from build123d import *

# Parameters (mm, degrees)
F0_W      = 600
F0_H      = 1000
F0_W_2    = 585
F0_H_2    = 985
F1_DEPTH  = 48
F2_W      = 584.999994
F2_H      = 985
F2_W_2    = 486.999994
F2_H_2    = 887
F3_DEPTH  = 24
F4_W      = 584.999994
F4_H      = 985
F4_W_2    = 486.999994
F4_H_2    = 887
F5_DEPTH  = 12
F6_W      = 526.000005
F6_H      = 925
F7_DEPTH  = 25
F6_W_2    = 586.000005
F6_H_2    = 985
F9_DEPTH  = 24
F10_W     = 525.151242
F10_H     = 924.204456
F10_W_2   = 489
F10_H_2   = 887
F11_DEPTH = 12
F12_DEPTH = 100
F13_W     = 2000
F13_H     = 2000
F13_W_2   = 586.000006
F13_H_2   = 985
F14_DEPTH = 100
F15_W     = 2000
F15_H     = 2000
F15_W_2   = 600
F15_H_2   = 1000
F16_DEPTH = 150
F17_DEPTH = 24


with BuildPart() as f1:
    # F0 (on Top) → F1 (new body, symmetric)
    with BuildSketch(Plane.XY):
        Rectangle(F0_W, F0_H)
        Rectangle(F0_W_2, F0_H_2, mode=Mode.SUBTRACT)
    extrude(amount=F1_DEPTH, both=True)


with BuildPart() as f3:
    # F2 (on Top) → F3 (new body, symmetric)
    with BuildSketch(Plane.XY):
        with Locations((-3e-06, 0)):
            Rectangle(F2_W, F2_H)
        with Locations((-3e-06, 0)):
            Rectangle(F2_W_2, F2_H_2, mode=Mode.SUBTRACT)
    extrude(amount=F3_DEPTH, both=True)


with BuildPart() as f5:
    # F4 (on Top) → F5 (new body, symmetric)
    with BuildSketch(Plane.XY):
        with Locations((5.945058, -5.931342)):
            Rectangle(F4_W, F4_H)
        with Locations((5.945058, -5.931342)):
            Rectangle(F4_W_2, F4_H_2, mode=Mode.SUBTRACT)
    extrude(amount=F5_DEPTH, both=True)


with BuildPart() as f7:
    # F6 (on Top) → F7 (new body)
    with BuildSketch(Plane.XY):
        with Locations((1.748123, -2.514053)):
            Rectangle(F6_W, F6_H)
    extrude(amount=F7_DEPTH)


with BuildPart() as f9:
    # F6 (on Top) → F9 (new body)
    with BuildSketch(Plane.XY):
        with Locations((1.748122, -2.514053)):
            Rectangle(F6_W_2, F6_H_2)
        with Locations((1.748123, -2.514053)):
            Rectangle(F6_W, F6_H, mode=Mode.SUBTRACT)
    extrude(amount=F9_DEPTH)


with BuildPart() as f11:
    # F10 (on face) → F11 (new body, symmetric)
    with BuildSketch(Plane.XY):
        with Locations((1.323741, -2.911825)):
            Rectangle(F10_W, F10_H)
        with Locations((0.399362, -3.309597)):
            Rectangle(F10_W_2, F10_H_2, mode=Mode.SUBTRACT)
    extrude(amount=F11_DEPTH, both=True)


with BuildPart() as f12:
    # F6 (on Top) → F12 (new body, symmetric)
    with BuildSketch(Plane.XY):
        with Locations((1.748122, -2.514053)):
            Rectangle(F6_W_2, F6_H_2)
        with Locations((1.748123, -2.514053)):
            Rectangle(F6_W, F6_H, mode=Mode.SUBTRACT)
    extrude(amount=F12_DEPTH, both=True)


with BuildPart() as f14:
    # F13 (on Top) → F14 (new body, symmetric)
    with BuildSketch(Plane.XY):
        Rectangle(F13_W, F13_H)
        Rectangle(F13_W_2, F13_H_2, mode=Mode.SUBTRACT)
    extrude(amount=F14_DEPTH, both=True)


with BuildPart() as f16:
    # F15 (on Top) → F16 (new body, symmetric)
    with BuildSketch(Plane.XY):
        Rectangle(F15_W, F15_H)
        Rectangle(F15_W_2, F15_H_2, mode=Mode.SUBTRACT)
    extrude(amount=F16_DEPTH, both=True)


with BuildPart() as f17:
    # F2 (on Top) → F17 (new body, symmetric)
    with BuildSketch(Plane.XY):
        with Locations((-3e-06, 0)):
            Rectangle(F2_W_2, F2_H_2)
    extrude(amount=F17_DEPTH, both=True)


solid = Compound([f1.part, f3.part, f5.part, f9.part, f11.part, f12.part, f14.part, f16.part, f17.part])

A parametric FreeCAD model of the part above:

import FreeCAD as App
import Part
import Sketcher

V = App.Vector
Q = App.Units.Quantity

doc = App.newDocument("Part")
body = doc.addObject("PartDesign::Body", "Body")

# Sketch on XY plane
sketch1 = body.newObject("Sketcher::SketchObject", "Sketch")
sketch1.AttachmentSupport = (doc.getObject("XY_Plane"), [""])
sketch1.MapMode = "FlatFace"
sketch1.addGeometry([
    Part.LineSegment(V(-300, 500, 0), V(-300, -500, 0)),  # 0
    Part.LineSegment(V(-300, -500, 0), V(300, -500, 0)),  # 1
    Part.LineSegment(V(300, -500, 0), V(300, 500, 0)),  # 2
    Part.LineSegment(V(300, 500, 0), V(-300, 500, 0)),  # 3
    Part.LineSegment(V(292, -492, 0), V(-292, -492, 0)),  # 4
    Part.LineSegment(V(-292, -492, 0), V(-292, 492, 0)),  # 5
    Part.LineSegment(V(-292, 492, 0), V(292, 492, 0)),  # 6
    Part.LineSegment(V(292, 492, 0), V(292, -492, 0)),  # 7
], False)
sketch1.addConstraint([
    Sketcher.Constraint("Coincident", 0, 2, 1, 1),
    Sketcher.Constraint("Coincident", 1, 2, 2, 1),
    Sketcher.Constraint("Coincident", 2, 2, 3, 1),
    Sketcher.Constraint("Coincident", 3, 2, 0, 1),
    Sketcher.Constraint("Coincident", 4, 2, 5, 1),
    Sketcher.Constraint("Coincident", 5, 2, 6, 1),
    Sketcher.Constraint("Coincident", 6, 2, 7, 1),
    Sketcher.Constraint("Coincident", 7, 2, 4, 1),
    Sketcher.Constraint("Vertical", 0),
    Sketcher.Constraint("Horizontal", 1),
    Sketcher.Constraint("Vertical", 2),
    Sketcher.Constraint("Horizontal", 3),
    Sketcher.Constraint("Horizontal", 4),
    Sketcher.Constraint("Vertical", 5),
    Sketcher.Constraint("Horizontal", 6),
    Sketcher.Constraint("Vertical", 7),
    Sketcher.Constraint("Symmetric", 0, 2, 2, 2, -1, 1),
    Sketcher.Constraint("Symmetric", 4, 2, 6, 2, -1, 1),
    Sketcher.Constraint("DistanceX", 1, 1, 1, 2, Q("600 mm")),
    Sketcher.Constraint("DistanceX", 4, 2, 4, 1, Q("585 mm")),
    Sketcher.Constraint("DistanceY", 0, 2, 0, 1, Q("1000 mm")),
    Sketcher.Constraint("DistanceY", 5, 1, 5, 2, Q("985 mm")),
])
pad1 = body.newObject("PartDesign::Pad", "Pad")
pad1.Profile = sketch1
pad1.Length = 96
pad1.Midplane = True
body2 = doc.addObject("PartDesign::Body", "Body001")

# Sketch on XY plane
sketch2 = body2.newObject("Sketcher::SketchObject", "Sketch001")
sketch2.AttachmentSupport = (doc.getObject("XY_Plane001"), [""])
sketch2.MapMode = "FlatFace"
sketch2.addGeometry([
    Part.LineSegment(V(-292, 492, 0), V(-292, -492, 0)),  # 0
    Part.LineSegment(V(-292, -492, 0), V(292, -492, 0)),  # 1
    Part.LineSegment(V(292, -492, 0), V(292, 492, 0)),  # 2
    Part.LineSegment(V(292, 492, 0), V(-292, 492, 0)),  # 3
    Part.LineSegment(V(243, -444, 0), V(-243, -444, 0)),  # 4
    Part.LineSegment(V(-243, -444, 0), V(-243, 444, 0)),  # 5
    Part.LineSegment(V(-243, 444, 0), V(243, 444, 0)),  # 6
    Part.LineSegment(V(243, 444, 0), V(243, -444, 0)),  # 7
], False)
sketch2.addConstraint([
    Sketcher.Constraint("Coincident", 0, 2, 1, 1),
    Sketcher.Constraint("Coincident", 1, 2, 2, 1),
    Sketcher.Constraint("Coincident", 2, 2, 3, 1),
    Sketcher.Constraint("Coincident", 3, 2, 0, 1),
    Sketcher.Constraint("Coincident", 4, 2, 5, 1),
    Sketcher.Constraint("Coincident", 5, 2, 6, 1),
    Sketcher.Constraint("Coincident", 6, 2, 7, 1),
    Sketcher.Constraint("Coincident", 7, 2, 4, 1),
    Sketcher.Constraint("Vertical", 0),
    Sketcher.Constraint("Horizontal", 1),
    Sketcher.Constraint("Vertical", 2),
    Sketcher.Constraint("Horizontal", 3),
    Sketcher.Constraint("Horizontal", 4),
    Sketcher.Constraint("Vertical", 5),
    Sketcher.Constraint("Horizontal", 6),
    Sketcher.Constraint("Vertical", 7),
    Sketcher.Constraint("Symmetric", 0, 2, 2, 2, -1, 1),
    Sketcher.Constraint("Symmetric", 4, 2, 6, 2, -1, 1),
    Sketcher.Constraint("DistanceY", 0, 2, 0, 1, Q("985 mm")),
    Sketcher.Constraint("DistanceY", 5, 1, 5, 2, Q("887 mm")),
    Sketcher.Constraint("DistanceX", 0, 2, 4, 2, Q("49 mm")),
    Sketcher.Constraint("DistanceX", 1, 1, 1, 2, Q("584.999994 mm")),
])
pad2 = body2.newObject("PartDesign::Pad", "Pad001")
pad2.Profile = sketch2
pad2.Length = 48
pad2.Midplane = True
body3 = doc.addObject("PartDesign::Body", "Body002")

# Sketch on XY plane
sketch3 = body3.newObject("Sketcher::SketchObject", "Sketch002")
sketch3.AttachmentSupport = (doc.getObject("XY_Plane002"), [""])
sketch3.MapMode = "FlatFace"
sketch3.addGeometry([
    Part.LineSegment(V(-287, 487, 0), V(-287, -498, 0)),  # 0
    Part.LineSegment(V(-287, -498, 0), V(298, -498, 0)),  # 1
    Part.LineSegment(V(298, -498, 0), V(298, 487, 0)),  # 2
    Part.LineSegment(V(298, 487, 0), V(-287, 487, 0)),  # 3
    Part.LineSegment(V(249, -449, 0), V(-238, -449, 0)),  # 4
    Part.LineSegment(V(-238, -449, 0), V(-238, 438, 0)),  # 5
    Part.LineSegment(V(-238, 438, 0), V(249, 438, 0)),  # 6
    Part.LineSegment(V(249, 438, 0), V(249, -449, 0)),  # 7
], False)
sketch3.addConstraint([
    Sketcher.Constraint("Coincident", 0, 2, 1, 1),
    Sketcher.Constraint("Coincident", 1, 2, 2, 1),
    Sketcher.Constraint("Coincident", 2, 2, 3, 1),
    Sketcher.Constraint("Coincident", 3, 2, 0, 1),
    Sketcher.Constraint("Coincident", 4, 2, 5, 1),
    Sketcher.Constraint("Coincident", 5, 2, 6, 1),
    Sketcher.Constraint("Coincident", 6, 2, 7, 1),
    Sketcher.Constraint("Coincident", 7, 2, 4, 1),
    Sketcher.Constraint("Vertical", 0),
    Sketcher.Constraint("Horizontal", 1),
    Sketcher.Constraint("Vertical", 2),
    Sketcher.Constraint("Horizontal", 3),
    Sketcher.Constraint("Horizontal", 4),
    Sketcher.Constraint("Vertical", 5),
    Sketcher.Constraint("Horizontal", 6),
    Sketcher.Constraint("Vertical", 7),
    Sketcher.Constraint("DistanceY", 0, 2, 0, 1, Q("985 mm")),
    Sketcher.Constraint("DistanceY", 5, 1, 5, 2, Q("887 mm")),
    Sketcher.Constraint("DistanceX", 0, 2, 4, 2, Q("49 mm")),
    Sketcher.Constraint("DistanceY", 0, 2, 4, 2, Q("49 mm")),
    Sketcher.Constraint("DistanceX", 6, 2, 2, 2, Q("49 mm")),
    Sketcher.Constraint("DistanceX", 1, 1, 1, 2, Q("584.999994 mm")),
    Sketcher.Constraint("DistanceX", 0, 2, -1, 1, Q("286.554939 mm")),
    Sketcher.Constraint("DistanceY", 0, 2, -1, 1, Q("498.431342 mm")),
])
pad3 = body3.newObject("PartDesign::Pad", "Pad002")
pad3.Profile = sketch3
pad3.Length = 24
pad3.Midplane = True
body4 = doc.addObject("PartDesign::Body", "Body003")

# Sketch on XY plane
sketch4 = body4.newObject("Sketcher::SketchObject", "Sketch003")
sketch4.AttachmentSupport = (doc.getObject("XY_Plane003"), [""])
sketch4.MapMode = "FlatFace"
sketch4.addGeometry([
    Part.LineSegment(V(-261, 460, 0), V(-261, -465, 0)),
    Part.LineSegment(V(-261, -465, 0), V(265, -465, 0)),
    Part.LineSegment(V(265, -465, 0), V(265, 460, 0)),
    Part.LineSegment(V(265, 460, 0), V(-261, 460, 0)),
], False)
sketch4.addConstraint([
    Sketcher.Constraint("Coincident", 0, 2, 1, 1),
    Sketcher.Constraint("Coincident", 1, 2, 2, 1),
    Sketcher.Constraint("Coincident", 2, 2, 3, 1),
    Sketcher.Constraint("Coincident", 3, 2, 0, 1),
    Sketcher.Constraint("Vertical", 0),
    Sketcher.Constraint("Horizontal", 1),
    Sketcher.Constraint("Vertical", 2),
    Sketcher.Constraint("Horizontal", 3),
    Sketcher.Constraint("DistanceY", 0, 2, 0, 1, Q("925 mm")),
    Sketcher.Constraint("DistanceX", 1, 1, 1, 2, Q("526.000005 mm")),
    Sketcher.Constraint("DistanceX", 0, 2, -1, 1, Q("261.251879 mm")),
    Sketcher.Constraint("DistanceY", 0, 2, -1, 1, Q("465.014053 mm")),
])
pad4 = body4.newObject("PartDesign::Pad", "Pad003")
pad4.Profile = sketch4
pad4.Length = 25
body5 = doc.addObject("PartDesign::Body", "Body004")

# Sketch on XY plane
sketch5 = body5.newObject("Sketcher::SketchObject", "Sketch004")
sketch5.AttachmentSupport = (doc.getObject("XY_Plane004"), [""])
sketch5.MapMode = "FlatFace"
sketch5.addGeometry([
    Part.LineSegment(V(-291, 490, 0), V(-291, -495, 0)),  # 0
    Part.LineSegment(V(-291, -495, 0), V(295, -495, 0)),  # 1
    Part.LineSegment(V(295, -495, 0), V(295, 490, 0)),  # 2
    Part.LineSegment(V(295, 490, 0), V(-291, 490, 0)),  # 3
    Part.LineSegment(V(265, -465, 0), V(-261, -465, 0)),  # 4
    Part.LineSegment(V(-261, -465, 0), V(-261, 460, 0)),  # 5
    Part.LineSegment(V(-261, 460, 0), V(265, 460, 0)),  # 6
    Part.LineSegment(V(265, 460, 0), V(265, -465, 0)),  # 7
], False)
sketch5.addConstraint([
    Sketcher.Constraint("Coincident", 0, 2, 1, 1),
    Sketcher.Constraint("Coincident", 1, 2, 2, 1),
    Sketcher.Constraint("Coincident", 2, 2, 3, 1),
    Sketcher.Constraint("Coincident", 3, 2, 0, 1),
    Sketcher.Constraint("Coincident", 4, 2, 5, 1),
    Sketcher.Constraint("Coincident", 5, 2, 6, 1),
    Sketcher.Constraint("Coincident", 6, 2, 7, 1),
    Sketcher.Constraint("Coincident", 7, 2, 4, 1),
    Sketcher.Constraint("Vertical", 0),
    Sketcher.Constraint("Horizontal", 1),
    Sketcher.Constraint("Vertical", 2),
    Sketcher.Constraint("Horizontal", 3),
    Sketcher.Constraint("Horizontal", 4),
    Sketcher.Constraint("Vertical", 5),
    Sketcher.Constraint("Horizontal", 6),
    Sketcher.Constraint("Vertical", 7),
    Sketcher.Constraint("DistanceY", 0, 2, 0, 1, Q("985 mm")),
    Sketcher.Constraint("DistanceY", 5, 1, 5, 2, Q("925 mm")),
    Sketcher.Constraint("DistanceX", 0, 2, 4, 2, Q("30.000001 mm")),
    Sketcher.Constraint("DistanceY", 0, 2, 4, 2, Q("30 mm")),
    Sketcher.Constraint("DistanceX", 6, 2, 2, 2, Q("29.999999 mm")),
    Sketcher.Constraint("DistanceX", 1, 1, 1, 2, Q("586.000005 mm")),
    Sketcher.Constraint("DistanceX", 0, 2, -1, 1, Q("291.251881 mm")),
    Sketcher.Constraint("DistanceY", 0, 2, -1, 1, Q("495.014053 mm")),
])
pad5 = body5.newObject("PartDesign::Pad", "Pad004")
pad5.Profile = sketch5
pad5.Length = 24
body6 = doc.addObject("PartDesign::Body", "Body005")

# Sketch on XY plane
sketch6 = body6.newObject("Sketcher::SketchObject", "Sketch005")
sketch6.AttachmentSupport = (doc.getObject("XY_Plane005"), [""])
sketch6.MapMode = "FlatFace"
sketch6.addGeometry([
    Part.LineSegment(V(-261, 459, 0), V(-261, -465, 0)),  # 0
    Part.LineSegment(V(-261, -465, 0), V(264, -465, 0)),  # 1
    Part.LineSegment(V(264, -465, 0), V(264, 459, 0)),  # 2
    Part.LineSegment(V(264, 459, 0), V(-261, 459, 0)),  # 3
    Part.LineSegment(V(245, -447, 0), V(-244, -447, 0)),  # 4
    Part.LineSegment(V(-244, -447, 0), V(-244, 440, 0)),  # 5
    Part.LineSegment(V(-244, 440, 0), V(245, 440, 0)),  # 6
    Part.LineSegment(V(245, 440, 0), V(245, -447, 0)),  # 7
], False)
sketch6.addConstraint([
    Sketcher.Constraint("Coincident", 0, 2, 1, 1),
    Sketcher.Constraint("Coincident", 1, 2, 2, 1),
    Sketcher.Constraint("Coincident", 2, 2, 3, 1),
    Sketcher.Constraint("Coincident", 3, 2, 0, 1),
    Sketcher.Constraint("Coincident", 4, 2, 5, 1),
    Sketcher.Constraint("Coincident", 5, 2, 6, 1),
    Sketcher.Constraint("Coincident", 6, 2, 7, 1),
    Sketcher.Constraint("Coincident", 7, 2, 4, 1),
    Sketcher.Constraint("Vertical", 0),
    Sketcher.Constraint("Horizontal", 1),
    Sketcher.Constraint("Vertical", 2),
    Sketcher.Constraint("Horizontal", 3),
    Sketcher.Constraint("Horizontal", 4),
    Sketcher.Constraint("Vertical", 5),
    Sketcher.Constraint("Horizontal", 6),
    Sketcher.Constraint("Vertical", 7),
    Sketcher.Constraint("DistanceX", 4, 2, 4, 1, Q("489 mm")),
    Sketcher.Constraint("DistanceY", 5, 1, 5, 2, Q("887 mm")),
    Sketcher.Constraint("DistanceX", 4, 2, 1, 2, Q("508 mm")),
    Sketcher.Constraint("DistanceY", 4, 2, 3, 2, Q("906 mm")),
    Sketcher.Constraint("DistanceX", 1, 1, 1, 2, Q("525.151242 mm")),
    Sketcher.Constraint("DistanceY", 0, 2, 0, 1, Q("924.204456 mm")),
    Sketcher.Constraint("DistanceX", 0, 2, -1, 1, Q("261.25188 mm")),
    Sketcher.Constraint("DistanceY", 0, 2, -1, 1, Q("465.014053 mm")),
])
pad6 = body6.newObject("PartDesign::Pad", "Pad005")
pad6.Profile = sketch6
pad6.Length = 24
pad6.Midplane = True
body7 = doc.addObject("PartDesign::Body", "Body006")

# Sketch on XY plane
sketch7 = body7.newObject("Sketcher::SketchObject", "Sketch006")
sketch7.AttachmentSupport = (doc.getObject("XY_Plane006"), [""])
sketch7.MapMode = "FlatFace"
sketch7.addGeometry([
    Part.LineSegment(V(-291, 490, 0), V(-291, -495, 0)),  # 0
    Part.LineSegment(V(-291, -495, 0), V(295, -495, 0)),  # 1
    Part.LineSegment(V(295, -495, 0), V(295, 490, 0)),  # 2
    Part.LineSegment(V(295, 490, 0), V(-291, 490, 0)),  # 3
    Part.LineSegment(V(265, -465, 0), V(-261, -465, 0)),  # 4
    Part.LineSegment(V(-261, -465, 0), V(-261, 460, 0)),  # 5
    Part.LineSegment(V(-261, 460, 0), V(265, 460, 0)),  # 6
    Part.LineSegment(V(265, 460, 0), V(265, -465, 0)),  # 7
], False)
sketch7.addConstraint([
    Sketcher.Constraint("Coincident", 0, 2, 1, 1),
    Sketcher.Constraint("Coincident", 1, 2, 2, 1),
    Sketcher.Constraint("Coincident", 2, 2, 3, 1),
    Sketcher.Constraint("Coincident", 3, 2, 0, 1),
    Sketcher.Constraint("Coincident", 4, 2, 5, 1),
    Sketcher.Constraint("Coincident", 5, 2, 6, 1),
    Sketcher.Constraint("Coincident", 6, 2, 7, 1),
    Sketcher.Constraint("Coincident", 7, 2, 4, 1),
    Sketcher.Constraint("Vertical", 0),
    Sketcher.Constraint("Horizontal", 1),
    Sketcher.Constraint("Vertical", 2),
    Sketcher.Constraint("Horizontal", 3),
    Sketcher.Constraint("Horizontal", 4),
    Sketcher.Constraint("Vertical", 5),
    Sketcher.Constraint("Horizontal", 6),
    Sketcher.Constraint("Vertical", 7),
    Sketcher.Constraint("DistanceY", 0, 2, 0, 1, Q("985 mm")),
    Sketcher.Constraint("DistanceY", 5, 1, 5, 2, Q("925 mm")),
    Sketcher.Constraint("DistanceX", 0, 2, 4, 2, Q("30.000001 mm")),
    Sketcher.Constraint("DistanceY", 0, 2, 4, 2, Q("30 mm")),
    Sketcher.Constraint("DistanceX", 6, 2, 2, 2, Q("29.999999 mm")),
    Sketcher.Constraint("DistanceX", 1, 1, 1, 2, Q("586.000005 mm")),
    Sketcher.Constraint("DistanceX", 0, 2, -1, 1, Q("291.251881 mm")),
    Sketcher.Constraint("DistanceY", 0, 2, -1, 1, Q("495.014053 mm")),
])
pad7 = body7.newObject("PartDesign::Pad", "Pad006")
pad7.Profile = sketch7
pad7.Length = 200
pad7.Midplane = True
body8 = doc.addObject("PartDesign::Body", "Body007")

# Sketch on XY plane
sketch8 = body8.newObject("Sketcher::SketchObject", "Sketch007")
sketch8.AttachmentSupport = (doc.getObject("XY_Plane007"), [""])
sketch8.MapMode = "FlatFace"
sketch8.addGeometry([
    Part.LineSegment(V(-1000, 1000, 0), V(-1000, -1000, 0)),  # 0
    Part.LineSegment(V(-1000, -1000, 0), V(1000, -1000, 0)),  # 1
    Part.LineSegment(V(1000, -1000, 0), V(1000, 1000, 0)),  # 2
    Part.LineSegment(V(1000, 1000, 0), V(-1000, 1000, 0)),  # 3
    Part.LineSegment(V(293, -492, 0), V(-293, -492, 0)),  # 4
    Part.LineSegment(V(-293, -492, 0), V(-293, 492, 0)),  # 5
    Part.LineSegment(V(-293, 492, 0), V(293, 492, 0)),  # 6
    Part.LineSegment(V(293, 492, 0), V(293, -492, 0)),  # 7
], False)
sketch8.addConstraint([
    Sketcher.Constraint("Coincident", 0, 2, 1, 1),
    Sketcher.Constraint("Coincident", 1, 2, 2, 1),
    Sketcher.Constraint("Coincident", 2, 2, 3, 1),
    Sketcher.Constraint("Coincident", 3, 2, 0, 1),
    Sketcher.Constraint("Coincident", 4, 2, 5, 1),
    Sketcher.Constraint("Coincident", 5, 2, 6, 1),
    Sketcher.Constraint("Coincident", 6, 2, 7, 1),
    Sketcher.Constraint("Coincident", 7, 2, 4, 1),
    Sketcher.Constraint("Vertical", 0),
    Sketcher.Constraint("Horizontal", 1),
    Sketcher.Constraint("Vertical", 2),
    Sketcher.Constraint("Horizontal", 3),
    Sketcher.Constraint("Horizontal", 4),
    Sketcher.Constraint("Vertical", 5),
    Sketcher.Constraint("Horizontal", 6),
    Sketcher.Constraint("Vertical", 7),
    Sketcher.Constraint("Symmetric", 0, 2, 2, 2, -1, 1),
    Sketcher.Constraint("Symmetric", 4, 2, 6, 2, -1, 1),
    Sketcher.Constraint("Equal", 3, 0),
    Sketcher.Constraint("DistanceX", 1, 1, 1, 2, Q("2000 mm")),
    Sketcher.Constraint("DistanceY", 5, 1, 5, 2, Q("985 mm")),
    Sketcher.Constraint("DistanceX", 4, 2, 4, 1, Q("586.000006 mm")),
])
pad8 = body8.newObject("PartDesign::Pad", "Pad007")
pad8.Profile = sketch8
pad8.Length = 200
pad8.Midplane = True
body9 = doc.addObject("PartDesign::Body", "Body008")

# Sketch on XY plane
sketch9 = body9.newObject("Sketcher::SketchObject", "Sketch008")
sketch9.AttachmentSupport = (doc.getObject("XY_Plane008"), [""])
sketch9.MapMode = "FlatFace"
sketch9.addGeometry([
    Part.LineSegment(V(-1000, 1000, 0), V(-1000, -1000, 0)),  # 0
    Part.LineSegment(V(-1000, -1000, 0), V(1000, -1000, 0)),  # 1
    Part.LineSegment(V(1000, -1000, 0), V(1000, 1000, 0)),  # 2
    Part.LineSegment(V(1000, 1000, 0), V(-1000, 1000, 0)),  # 3
    Part.LineSegment(V(300, -500, 0), V(-300, -500, 0)),  # 4
    Part.LineSegment(V(-300, -500, 0), V(-300, 500, 0)),  # 5
    Part.LineSegment(V(-300, 500, 0), V(300, 500, 0)),  # 6
    Part.LineSegment(V(300, 500, 0), V(300, -500, 0)),  # 7
], False)
sketch9.addConstraint([
    Sketcher.Constraint("Coincident", 0, 2, 1, 1),
    Sketcher.Constraint("Coincident", 1, 2, 2, 1),
    Sketcher.Constraint("Coincident", 2, 2, 3, 1),
    Sketcher.Constraint("Coincident", 3, 2, 0, 1),
    Sketcher.Constraint("Coincident", 4, 2, 5, 1),
    Sketcher.Constraint("Coincident", 5, 2, 6, 1),
    Sketcher.Constraint("Coincident", 6, 2, 7, 1),
    Sketcher.Constraint("Coincident", 7, 2, 4, 1),
    Sketcher.Constraint("Vertical", 0),
    Sketcher.Constraint("Horizontal", 1),
    Sketcher.Constraint("Vertical", 2),
    Sketcher.Constraint("Horizontal", 3),
    Sketcher.Constraint("Horizontal", 4),
    Sketcher.Constraint("Vertical", 5),
    Sketcher.Constraint("Horizontal", 6),
    Sketcher.Constraint("Vertical", 7),
    Sketcher.Constraint("Symmetric", 0, 2, 2, 2, -1, 1),
    Sketcher.Constraint("Symmetric", 4, 2, 6, 2, -1, 1),
    Sketcher.Constraint("Equal", 3, 0),
    Sketcher.Constraint("DistanceX", 1, 1, 1, 2, Q("2000 mm")),
    Sketcher.Constraint("DistanceX", 4, 2, 4, 1, Q("600 mm")),
    Sketcher.Constraint("DistanceY", 5, 1, 5, 2, Q("1000 mm")),
])
pad9 = body9.newObject("PartDesign::Pad", "Pad008")
pad9.Profile = sketch9
pad9.Length = 300
pad9.Midplane = True
body10 = doc.addObject("PartDesign::Body", "Body009")

# Sketch on XY plane
sketch10 = body10.newObject("Sketcher::SketchObject", "Sketch009")
sketch10.AttachmentSupport = (doc.getObject("XY_Plane009"), [""])
sketch10.MapMode = "FlatFace"
sketch10.addGeometry([
    Part.LineSegment(V(-243, 444, 0), V(-243, -444, 0)),
    Part.LineSegment(V(-243, -444, 0), V(243, -444, 0)),
    Part.LineSegment(V(243, -444, 0), V(243, 444, 0)),
    Part.LineSegment(V(243, 444, 0), V(-243, 444, 0)),
], False)
sketch10.addConstraint([
    Sketcher.Constraint("Coincident", 0, 2, 1, 1),
    Sketcher.Constraint("Coincident", 1, 2, 2, 1),
    Sketcher.Constraint("Coincident", 2, 2, 3, 1),
    Sketcher.Constraint("Coincident", 3, 2, 0, 1),
    Sketcher.Constraint("Vertical", 0),
    Sketcher.Constraint("Horizontal", 1),
    Sketcher.Constraint("Vertical", 2),
    Sketcher.Constraint("Horizontal", 3),
    Sketcher.Constraint("Symmetric", 0, 2, 2, 2, -1, 1),
    Sketcher.Constraint("DistanceY", 0, 2, 0, 1, Q("887 mm")),
    Sketcher.Constraint("DistanceX", 1, 1, 1, 2, Q("486.999994 mm")),
])
pad10 = body10.newObject("PartDesign::Pad", "Pad009")
pad10.Profile = sketch10
pad10.Length = 48
pad10.Midplane = True
body4.Visibility = False

doc.recompute()
